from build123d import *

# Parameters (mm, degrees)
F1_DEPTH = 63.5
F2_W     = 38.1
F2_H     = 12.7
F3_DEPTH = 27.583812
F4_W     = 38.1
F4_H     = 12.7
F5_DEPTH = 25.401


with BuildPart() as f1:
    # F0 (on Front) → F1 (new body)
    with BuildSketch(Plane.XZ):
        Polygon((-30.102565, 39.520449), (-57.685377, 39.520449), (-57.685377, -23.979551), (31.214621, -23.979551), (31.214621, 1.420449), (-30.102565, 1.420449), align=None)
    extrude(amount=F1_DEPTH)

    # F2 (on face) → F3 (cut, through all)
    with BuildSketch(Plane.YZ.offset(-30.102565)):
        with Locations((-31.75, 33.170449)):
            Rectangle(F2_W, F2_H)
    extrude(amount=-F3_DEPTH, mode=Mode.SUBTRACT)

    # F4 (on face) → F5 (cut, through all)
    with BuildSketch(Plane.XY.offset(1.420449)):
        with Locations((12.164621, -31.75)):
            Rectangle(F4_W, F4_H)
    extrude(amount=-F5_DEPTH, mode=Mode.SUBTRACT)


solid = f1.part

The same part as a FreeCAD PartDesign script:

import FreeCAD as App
import Part
import Sketcher
from FreeCAD import Vector
Q = App.Units.Quantity


def add_polygon(sketch, points):
    """Adds a closed chain of lines whose ends are joined by coincident constraints."""
    first, n = sketch.GeometryCount, len(points)
    for a, b in zip(points, points[1:] + points[:1]):
        sketch.addGeometry(Part.LineSegment(App.Vector(*a, 0), App.Vector(*b, 0)), False)
    for i in range(n):
        sketch.addConstraint(Sketcher.Constraint("Coincident", first + i, 2, first + (i + 1) % n, 1))

doc = App.newDocument("Part")
body = doc.addObject("PartDesign::Body", "Body")

# Sketch on XZ plane
sketch1 = body.newObject("Sketcher::SketchObject", "Sketch")
sketch1.AttachmentSupport = (doc.getObject("XZ_Plane"), [""])
sketch1.MapMode = "FlatFace"
add_polygon(sketch1, [(-30, 40), (-58, 40), (-58, -24), (31, -24), (31, 1), (-30, 1)])  # lines 0-5
sketch1.addConstraint([
    Sketcher.Constraint("Horizontal", 0),
    Sketcher.Constraint("Vertical", 1),
    Sketcher.Constraint("Horizontal", 2),
    Sketcher.Constraint("Vertical", 3),
    Sketcher.Constraint("Horizontal", 4),
    Sketcher.Constraint("Vertical", 5),
    Sketcher.Constraint("DistanceY", 3, 1, 3, 2, Q("1 in")),
    Sketcher.Constraint("DistanceX", 2, 1, 2, 2, Q("3.4999999 in")),
    Sketcher.Constraint("DistanceY", 1, 2, 1, 1, Q("2.5 in")),
    Sketcher.Constraint("DistanceX", 0, 2, 0, 1, 27.582812),
    Sketcher.Constraint("DistanceY", -1, 1, 0, 2, 39.520449),
    Sketcher.Constraint("DistanceX", -1, 1, 2, 2, 31.214621),
])
pad1 = body.newObject("PartDesign::Pad", "Pad")
pad1.Profile = sketch1
pad1.Length = Q("2.5 in")

# Sketch on YZ plane
sketch2 = body.newObject("Sketcher::SketchObject", "Sketch001")
sketch2.AttachmentSupport = (doc.getObject("YZ_Plane"), [""])
sketch2.MapMode = "FlatFace"
sketch2.AttachmentOffset = App.Placement(Vector(0, 0, -30.102565), App.Rotation())
add_polygon(sketch2, [(-51, 40), (-51, 27), (-13, 27), (-13, 40)])  # lines 0-3
sketch2.addConstraint([
    Sketcher.Constraint("Vertical", 0),
    Sketcher.Constraint("Horizontal", 1),
    Sketcher.Constraint("Vertical", 2),
    Sketcher.Constraint("Horizontal", 3),
    Sketcher.Constraint("DistanceX", 1, 1, 1, 2, Q("1.5 in")),
    Sketcher.Constraint("DistanceY", 0, 2, 0, 1, Q("0.5 in")),
    Sketcher.Constraint("DistanceX", 0, 2, -1, 1, Q("2 in")),
    Sketcher.Constraint("DistanceY", -1, 1, 0, 2, 26.820449),
])
pocket1 = body.newObject("PartDesign::Pocket", "Pocket")
pocket1.Profile = sketch2
pocket1.Type = "ThroughAll"

# Sketch on XY plane
sketch3 = body.newObject("Sketcher::SketchObject", "Sketch002")
sketch3.AttachmentSupport = (doc.getObject("XY_Plane"), [""])
sketch3.MapMode = "FlatFace"
sketch3.AttachmentOffset = App.Placement(Vector(0, 0, 1.420449), App.Rotation())
add_polygon(sketch3, [(-7, -25), (-7, -38), (31, -38), (31, -25)])  # lines 0-3
sketch3.addConstraint([
    Sketcher.Constraint("Vertical", 0),
    Sketcher.Constraint("Horizontal", 1),
    Sketcher.Constraint("Vertical", 2),
    Sketcher.Constraint("Horizontal", 3),
    Sketcher.Constraint("DistanceX", 1, 1, 1, 2, Q("1.5 in")),
    Sketcher.Constraint("DistanceY", 0, 2, 0, 1, Q("0.5 in")),
    Sketcher.Constraint("DistanceY", 2, 2, -1, 1, Q("1 in")),
    Sketcher.Constraint("DistanceX", 0, 2, -1, 1, 6.885379),
])
pocket2 = body.newObject("PartDesign::Pocket", "Pocket001")
pocket2.Profile = sketch3
pocket2.Type = "ThroughAll"

doc.recompute()
